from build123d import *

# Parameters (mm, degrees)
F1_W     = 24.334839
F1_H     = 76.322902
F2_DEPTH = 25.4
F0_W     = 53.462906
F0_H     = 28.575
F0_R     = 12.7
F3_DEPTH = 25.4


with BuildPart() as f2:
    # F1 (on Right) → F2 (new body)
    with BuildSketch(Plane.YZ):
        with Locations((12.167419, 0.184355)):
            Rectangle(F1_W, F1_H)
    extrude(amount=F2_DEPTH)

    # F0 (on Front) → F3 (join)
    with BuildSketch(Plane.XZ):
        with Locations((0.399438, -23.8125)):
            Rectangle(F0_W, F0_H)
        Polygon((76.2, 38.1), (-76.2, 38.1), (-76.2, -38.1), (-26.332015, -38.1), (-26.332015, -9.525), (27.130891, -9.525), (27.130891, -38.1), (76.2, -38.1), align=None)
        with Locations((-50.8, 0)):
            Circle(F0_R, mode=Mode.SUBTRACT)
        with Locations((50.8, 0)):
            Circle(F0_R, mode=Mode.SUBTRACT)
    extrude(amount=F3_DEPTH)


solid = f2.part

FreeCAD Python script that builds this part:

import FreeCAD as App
import Part
import Sketcher
Q = App.Units.Quantity

doc = App.newDocument("Part")
params = doc.addObject("Spreadsheet::Sheet", "Params")
for row, (alias, value) in enumerate([
    ("pad1_length", "1 in"),
    ("sketch2_diameter", "1 in"),
    ("sketch2_width", "6 in"),
    ("sketch2_height", "3 in"),
    ("pad2_length", "1 in"),
], start=1):
    params.set(f"A{row}", alias)
    params.set(f"B{row}", "=" + value)
    params.setAlias(f"B{row}", alias)

body = doc.addObject("PartDesign::Body", "Body")

# Sketch on YZ plane
sketch1 = doc.addObject("Sketcher::SketchObject", "Sketch")
body.addObject(sketch1)
sketch1.AttachmentSupport = (doc.YZ_Plane, [""])
sketch1.MapMode = "FlatFace"
sketch1.addGeometry([
    Part.LineSegment(App.Vector(0, 38, 0), App.Vector(0, -38, 0)),
    Part.LineSegment(App.Vector(0, -38, 0), App.Vector(24, -38, 0)),
    Part.LineSegment(App.Vector(24, -38, 0), App.Vector(24, 38, 0)),
    Part.LineSegment(App.Vector(24, 38, 0), App.Vector(0, 38, 0)),
], False)
sketch1.addConstraint([
    Sketcher.Constraint("Coincident", 0, 2, 1, 1),
    Sketcher.Constraint("Coincident", 1, 2, 2, 1),
    Sketcher.Constraint("Coincident", 2, 2, 3, 1),
    Sketcher.Constraint("Coincident", 3, 2, 0, 1),
    Sketcher.Constraint("Vertical", 0),
    Sketcher.Constraint("Horizontal", 1),
    Sketcher.Constraint("Vertical", 2),
    Sketcher.Constraint("Horizontal", 3),
    Sketcher.Constraint("PointOnObject", 0, 2, -2),
    Sketcher.Constraint("DistanceY", 0, 2, 0, 1, 76.322902),
    Sketcher.Constraint("DistanceX", 1, 1, 1, 2, 24.334839),
    Sketcher.Constraint("DistanceY", 0, 2, -1, 1, 37.977096),
])
pad1 = doc.addObject("PartDesign::Pad", "Pad")
body.addObject(pad1)
pad1.Profile = sketch1
pad1.setExpression("Length", "Params.pad1_length")

# Sketch on XZ plane
sketch2 = doc.addObject("Sketcher::SketchObject", "Sketch001")
body.addObject(sketch2)
sketch2.AttachmentSupport = (doc.XZ_Plane, [""])
sketch2.MapMode = "FlatFace"
sketch2.addGeometry([
    Part.LineSegment(App.Vector(76, -38, 0), App.Vector(76, 38, 0)),  # 0
    Part.LineSegment(App.Vector(76, 38, 0), App.Vector(-76, 38, 0)),  # 1
    Part.LineSegment(App.Vector(-76, 38, 0), App.Vector(-76, -38, 0)),  # 2
    Part.LineSegment(App.Vector(-76, -38, 0), App.Vector(76, -38, 0)),  # 3
    Part.Circle(App.Vector(-51, 0, 0), App.Vector(0, 0, 1), 13),  # 4
    Part.Circle(App.Vector(51, 0, 0), App.Vector(0, 0, 1), 13),  # 5
], False)
sketch2.addConstraint([
    Sketcher.Constraint("Coincident", 0, 2, 1, 1),
    Sketcher.Constraint("Coincident", 1, 2, 2, 1),
    Sketcher.Constraint("Coincident", 2, 2, 3, 1),
    Sketcher.Constraint("Coincident", 3, 2, 0, 1),
    Sketcher.Constraint("Vertical", 0),
    Sketcher.Constraint("Horizontal", 1),
    Sketcher.Constraint("Vertical", 2),
    Sketcher.Constraint("Horizontal", 3),
    Sketcher.Constraint("Equal", 4, 5),
    Sketcher.Constraint("Symmetric", 4, 3, 5, 3, -1, 1),
    Sketcher.Constraint("Symmetric", 0, 2, 2, 2, -1, 1),
    Sketcher.Constraint("PointOnObject", 4, 3, -1),
    Sketcher.Constraint("Diameter", 4, Q("1 in")),
    Sketcher.Constraint("DistanceX", 1, 2, 1, 1, Q("6 in")),
    Sketcher.Constraint("DistanceY", 0, 1, 0, 2, Q("3 in")),
    Sketcher.Constraint("DistanceX", 4, 3, -1, 1, Q("2 in")),
])
sketch2.setExpression("Constraints[12]", "Params.sketch2_diameter")
sketch2.setExpression("Constraints[13]", "Params.sketch2_width")
sketch2.setExpression("Constraints[14]", "Params.sketch2_height")
pad2 = doc.addObject("PartDesign::Pad", "Pad001")
body.addObject(pad2)
pad2.Profile = sketch2
pad2.setExpression("Length", "Params.pad2_length")

doc.recompute()
